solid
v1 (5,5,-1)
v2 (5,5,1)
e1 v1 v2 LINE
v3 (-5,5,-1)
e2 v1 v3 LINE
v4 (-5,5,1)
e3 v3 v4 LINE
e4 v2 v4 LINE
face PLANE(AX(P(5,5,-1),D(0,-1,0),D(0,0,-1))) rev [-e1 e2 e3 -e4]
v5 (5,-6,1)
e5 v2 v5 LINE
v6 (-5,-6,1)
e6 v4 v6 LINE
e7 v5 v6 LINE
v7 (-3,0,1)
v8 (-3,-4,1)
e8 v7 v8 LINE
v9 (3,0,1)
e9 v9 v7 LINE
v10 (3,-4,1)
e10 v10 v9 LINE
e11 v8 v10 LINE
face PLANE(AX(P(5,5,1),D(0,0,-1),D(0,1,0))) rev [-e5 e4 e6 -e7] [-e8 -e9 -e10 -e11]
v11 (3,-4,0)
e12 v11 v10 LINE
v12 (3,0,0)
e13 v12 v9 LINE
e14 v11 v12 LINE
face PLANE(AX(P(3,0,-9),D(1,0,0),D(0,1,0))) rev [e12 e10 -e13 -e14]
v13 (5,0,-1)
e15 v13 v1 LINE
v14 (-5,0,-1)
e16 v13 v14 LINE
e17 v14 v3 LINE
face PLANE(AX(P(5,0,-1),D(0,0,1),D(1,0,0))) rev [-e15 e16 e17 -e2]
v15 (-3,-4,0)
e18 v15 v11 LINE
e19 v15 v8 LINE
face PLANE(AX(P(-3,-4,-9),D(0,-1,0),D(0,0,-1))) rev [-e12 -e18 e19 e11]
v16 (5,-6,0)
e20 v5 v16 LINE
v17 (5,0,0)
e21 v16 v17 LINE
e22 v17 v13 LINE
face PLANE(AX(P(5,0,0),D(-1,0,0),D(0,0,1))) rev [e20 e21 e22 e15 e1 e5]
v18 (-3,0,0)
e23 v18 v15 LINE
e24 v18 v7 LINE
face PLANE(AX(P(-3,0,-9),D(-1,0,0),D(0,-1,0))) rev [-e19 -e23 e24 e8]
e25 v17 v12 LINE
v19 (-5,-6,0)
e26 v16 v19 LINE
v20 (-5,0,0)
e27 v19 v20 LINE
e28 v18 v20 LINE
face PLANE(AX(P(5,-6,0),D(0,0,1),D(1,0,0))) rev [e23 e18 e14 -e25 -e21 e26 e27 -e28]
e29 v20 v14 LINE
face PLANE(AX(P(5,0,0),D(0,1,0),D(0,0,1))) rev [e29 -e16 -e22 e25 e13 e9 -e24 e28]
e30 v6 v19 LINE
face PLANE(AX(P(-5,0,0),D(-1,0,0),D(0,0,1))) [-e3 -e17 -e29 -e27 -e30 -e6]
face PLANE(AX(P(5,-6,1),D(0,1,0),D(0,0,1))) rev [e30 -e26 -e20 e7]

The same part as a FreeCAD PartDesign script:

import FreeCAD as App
import Part
import Sketcher
from FreeCAD import Vector

doc = App.newDocument("Part")
body = doc.addObject("PartDesign::Body", "Body")

sketch1 = body.newObject("Sketcher::SketchObject", "Sketch")
sketch1.AttachmentSupport = (doc.getObject("YZ_Plane"), [""])
sketch1.MapMode = "FlatFace"
sketch1.addGeometry([
    Part.LineSegment(Vector(0, 0, 0), Vector(0, -1, 0)),
    Part.LineSegment(Vector(0, -1, 0), Vector(5, -1, 0)),
    Part.LineSegment(Vector(5, -1, 0), Vector(5, 1, 0)),
    Part.LineSegment(Vector(5, 1, 0), Vector(-6, 1, 0)),
    Part.LineSegment(Vector(-6, 1, 0), Vector(-6, 0, 0)),
    Part.LineSegment(Vector(-6, 0, 0), Vector(0, 0, 0)),
], False)
sketch1.addConstraint([
    Sketcher.Constraint("Coincident", 0, 2, 1, 1),
    Sketcher.Constraint("Coincident", 1, 2, 2, 1),
    Sketcher.Constraint("Coincident", 2, 2, 3, 1),
    Sketcher.Constraint("Coincident", 3, 2, 4, 1),
    Sketcher.Constraint("Coincident", 4, 2, 5, 1),
    Sketcher.Constraint("Coincident", 5, 2, 0, 1),
    Sketcher.Constraint("Vertical", 0),
    Sketcher.Constraint("Horizontal", 1),
    Sketcher.Constraint("Vertical", 2),
    Sketcher.Constraint("Horizontal", 3),
    Sketcher.Constraint("Vertical", 4),
    Sketcher.Constraint("Horizontal", 5),
    Sketcher.Constraint("Coincident", 5, 2, -1, 1),
    Sketcher.Constraint("Equal", 0, 4),
    Sketcher.Constraint("DistanceX", 1, 1, 1, 2, 5.0),
    Sketcher.Constraint("DistanceX", 3, 2, 3, 1, 11.0),
    Sketcher.Constraint("DistanceY", 0, 2, 0, 1, 1.0),
])
pad1 = body.newObject("PartDesign::Pad", "Pad")
pad1.Profile = sketch1
pad1.Length = 10
pad1.Midplane = True

sketch2 = body.newObject("Sketcher::SketchObject", "Sketch001")
sketch2.AttachmentSupport = (doc.getObject("XY_Plane"), [""])
sketch2.MapMode = "FlatFace"
sketch2.AttachmentOffset = App.Placement(Vector(0, 0, 1), App.Rotation())
sketch2.addGeometry([
    Part.LineSegment(Vector(-3, 0, 0), Vector(-3, -4, 0)),
    Part.LineSegment(Vector(-3, -4, 0), Vector(3, -4, 0)),
    Part.LineSegment(Vector(3, -4, 0), Vector(3, 0, 0)),
    Part.LineSegment(Vector(3, 0, 0), Vector(-3, 0, 0)),
], False)
sketch2.addConstraint([
    Sketcher.Constraint("Coincident", 0, 2, 1, 1),
    Sketcher.Constraint("Coincident", 1, 2, 2, 1),
    Sketcher.Constraint("Coincident", 2, 2, 3, 1),
    Sketcher.Constraint("Coincident", 3, 2, 0, 1),
    Sketcher.Constraint("Vertical", 0),
    Sketcher.Constraint("Horizontal", 1),
    Sketcher.Constraint("Vertical", 2),
    Sketcher.Constraint("Horizontal", 3),
    Sketcher.Constraint("Symmetric", 2, 2, 3, 2, -1, 1),
    Sketcher.Constraint("DistanceX", 1, 1, 1, 2, 6.0),
    Sketcher.Constraint("DistanceY", 0, 2, 0, 1, 4.0),
])
pocket1 = body.newObject("PartDesign::Pocket", "Pocket")
pocket1.Profile = sketch2
pocket1.Length = 10

doc.recompute()
